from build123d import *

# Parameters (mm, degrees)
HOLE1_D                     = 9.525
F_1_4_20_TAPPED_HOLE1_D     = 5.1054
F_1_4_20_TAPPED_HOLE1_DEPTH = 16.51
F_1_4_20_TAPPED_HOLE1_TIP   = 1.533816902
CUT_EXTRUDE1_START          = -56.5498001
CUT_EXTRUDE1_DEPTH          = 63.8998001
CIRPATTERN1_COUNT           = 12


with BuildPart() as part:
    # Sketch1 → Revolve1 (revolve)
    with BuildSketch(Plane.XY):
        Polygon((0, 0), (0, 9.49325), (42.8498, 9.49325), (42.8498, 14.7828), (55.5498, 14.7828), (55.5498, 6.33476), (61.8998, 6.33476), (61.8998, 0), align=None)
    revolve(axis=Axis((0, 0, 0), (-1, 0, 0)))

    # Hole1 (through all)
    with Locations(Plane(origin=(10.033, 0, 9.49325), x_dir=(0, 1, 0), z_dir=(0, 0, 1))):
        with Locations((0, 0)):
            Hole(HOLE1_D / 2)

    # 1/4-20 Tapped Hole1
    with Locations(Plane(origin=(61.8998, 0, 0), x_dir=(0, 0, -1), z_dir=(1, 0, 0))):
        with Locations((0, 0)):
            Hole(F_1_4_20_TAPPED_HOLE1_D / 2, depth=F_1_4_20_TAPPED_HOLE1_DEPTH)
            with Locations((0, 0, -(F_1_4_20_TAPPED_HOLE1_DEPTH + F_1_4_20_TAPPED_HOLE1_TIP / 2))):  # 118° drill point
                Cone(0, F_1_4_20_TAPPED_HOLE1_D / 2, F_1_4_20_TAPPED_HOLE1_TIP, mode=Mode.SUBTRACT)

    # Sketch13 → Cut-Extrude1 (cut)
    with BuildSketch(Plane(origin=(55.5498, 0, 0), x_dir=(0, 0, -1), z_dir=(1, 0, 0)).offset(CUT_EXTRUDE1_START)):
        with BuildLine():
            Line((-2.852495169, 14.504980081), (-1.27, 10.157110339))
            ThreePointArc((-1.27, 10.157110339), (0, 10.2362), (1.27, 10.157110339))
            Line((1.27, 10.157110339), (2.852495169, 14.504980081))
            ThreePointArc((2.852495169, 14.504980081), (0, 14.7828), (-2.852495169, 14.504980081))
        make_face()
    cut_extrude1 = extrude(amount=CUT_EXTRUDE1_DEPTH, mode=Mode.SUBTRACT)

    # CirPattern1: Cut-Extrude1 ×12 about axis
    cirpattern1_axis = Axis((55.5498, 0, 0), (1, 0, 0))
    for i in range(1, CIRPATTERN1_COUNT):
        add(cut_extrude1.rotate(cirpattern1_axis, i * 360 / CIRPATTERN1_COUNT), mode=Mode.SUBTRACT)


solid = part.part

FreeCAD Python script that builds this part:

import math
import FreeCAD as App
import Part
import Sketcher
Q = App.Units.Quantity


def add_polygon(sketch, points):
    """Adds a closed chain of lines whose ends are joined by coincident constraints."""
    first, n = sketch.GeometryCount, len(points)
    for a, b in zip(points, points[1:] + points[:1]):
        sketch.addGeometry(Part.LineSegment(App.Vector(*a, 0), App.Vector(*b, 0)), False)
    for i in range(n):
        sketch.addConstraint(Sketcher.Constraint("Coincident", first + i, 2, first + (i + 1) % n, 1))

doc = App.newDocument("Part")
params = doc.addObject("Spreadsheet::Sheet", "Params")
for row, (alias, value) in enumerate([
    ("sketch1_width", "0.5 in"),
    ("sketch1_width2", "0.25 in"),
    ("sketch1_width3", "2.437 in"),
    ("revolution_angle", "360 deg"),
    ("sketch2_diameter", "0.375 in"),
    ("hole_diameter", "0.375 in"),
    ("sketch3_diameter", "0.201 in"),
    ("hole2_diameter", "0.201 in"),
    ("hole2_depth", "0.65 in"),
    ("sketch4_radius", "0.403 in"),
    ("sketch4_radius2", "0.582 in"),
    ("pocket1_length", "63.8998 mm"),
], start=1):
    params.set(f"A{row}", alias)
    params.set(f"B{row}", "=" + value)
    params.setAlias(f"B{row}", alias)

body = doc.addObject("PartDesign::Body", "Body")

sketch1 = doc.addObject("Sketcher::SketchObject", "Sketch")
body.addObject(sketch1)
sketch1.AttachmentSupport = (doc.XY_Plane, [""])
sketch1.MapMode = "FlatFace"
add_polygon(sketch1, [(0, 9.49325), (0, 0), (61.8998, 0), (61.8998, 6.33476), (55.5498, 6.33476), (55.5498, 14.7828), (42.8498, 14.7828), (42.8498, 9.49325)])
sketch1.addConstraint([
    Sketcher.Constraint("Vertical", 0),
    Sketcher.Constraint("Horizontal", 1),
    Sketcher.Constraint("Vertical", 2),
    Sketcher.Constraint("Horizontal", 3),
    Sketcher.Constraint("Vertical", 4),
    Sketcher.Constraint("Horizontal", 5),
    Sketcher.Constraint("Vertical", 6),
    Sketcher.Constraint("Horizontal", 7),
    Sketcher.Constraint("Coincident", 0, 2, -1, 1),
    Sketcher.Constraint("DistanceX", 5, 2, 5, 1, Q("0.5 in")),
    Sketcher.Constraint("DistanceX", 3, 2, 3, 1, Q("0.25 in")),
    Sketcher.Constraint("DistanceX", 1, 1, 1, 2, Q("2.437 in")),
    Sketcher.Constraint("DistanceY", 2, 1, 2, 2, Q("0.2494 in")),
    Sketcher.Constraint("DistanceY", 4, 1, 4, 2, Q("0.3326 in")),
    Sketcher.Constraint("DistanceY", 0, 2, 0, 1, 9.49325),
])
sketch1.setExpression("Constraints[17]", "Params.sketch1_width")
sketch1.setExpression("Constraints[18]", "Params.sketch1_width2")
sketch1.setExpression("Constraints[19]", "Params.sketch1_width3")
revolution = doc.addObject("PartDesign::Revolution", "Revolution")
body.addObject(revolution)
revolution.Profile = sketch1
revolution.ReferenceAxis = (sketch1, ["H_Axis"])
revolution.setExpression("Angle", "Params.revolution_angle")

sketch2 = doc.addObject("Sketcher::SketchObject", "Sketch001")
body.addObject(sketch2)
sketch2.AttachmentSupport = (doc.XY_Plane, [""])
sketch2.MapMode = "FlatFace"
sketch2.AttachmentOffset = App.Placement(App.Vector(0, 0, 9.49325), App.Rotation())
sketch2.addGeometry(Part.Circle(App.Vector(10.033, 0, 0), App.Vector(0, 0, 1), 4.7625), False)
sketch2.addConstraint([
    Sketcher.Constraint("PointOnObject", 0, 3, -1),
    Sketcher.Constraint("Diameter", 0, Q("0.375 in")),
    Sketcher.Constraint("DistanceX", -1, 1, 0, 3, Q("0.395 in")),
])
sketch2.setExpression("Constraints[1]", "Params.sketch2_diameter")
doc.recompute()
hole = doc.addObject("PartDesign::Hole", "Hole")
body.addObject(hole)
hole.Profile = sketch2
hole.ThreadType = "None"
hole.setExpression("Diameter", "Params.hole_diameter")
hole.DepthType = "ThroughAll"

sketch3 = doc.addObject("Sketcher::SketchObject", "Sketch002")
body.addObject(sketch3)
sketch3.AttachmentSupport = (doc.YZ_Plane, [""])
sketch3.MapMode = "FlatFace"
sketch3.AttachmentOffset = App.Placement(App.Vector(0, 0, 2.437 * 25.4), App.Rotation())
sketch3.addGeometry(Part.Circle(App.Vector(0, 0, 0), App.Vector(0, 0, 1), 2.5527), False)
sketch3.addConstraint([
    Sketcher.Constraint("Coincident", 0, 3, -1, 1),
    Sketcher.Constraint("Diameter", 0, Q("0.201 in")),
])
sketch3.setExpression("Constraints[1]", "Params.sketch3_diameter")
doc.recompute()
hole2 = doc.addObject("PartDesign::Hole", "Hole001")
body.addObject(hole2)
hole2.Profile = sketch3
hole2.ThreadType = "None"
hole2.setExpression("Diameter", "Params.hole2_diameter")
hole2.DepthType = "Dimension"
hole2.setExpression("Depth", "Params.hole2_depth")
hole2.DrillPoint = "Angled"
hole2.DrillPointAngle = 118

sketch4 = doc.addObject("Sketcher::SketchObject", "Sketch003")
body.addObject(sketch4)
sketch4.AttachmentSupport = (doc.YZ_Plane, [""])
sketch4.MapMode = "FlatFace"
sketch4.AttachmentOffset = App.Placement(App.Vector(0, 0, -1), App.Rotation())
sketch4.addGeometry([
    Part.LineSegment(App.Vector(14.50498, 2.852495, 0), App.Vector(10.15711, 1.27, 0)),
    Part.ArcOfCircle(Part.Circle(App.Vector(0, 0, 0), App.Vector(0, 0, 1), 10.2362), math.radians(-7.127023), math.radians(7.127023)),
    Part.LineSegment(App.Vector(10.15711, -1.27, 0), App.Vector(14.50498, -2.852495, 0)),
    Part.ArcOfCircle(Part.Circle(App.Vector(0, 0, 0), App.Vector(0, 0, 1), 14.7828), math.radians(-11.125601), math.radians(11.125601)),
], False)
sketch4.addConstraint([
    Sketcher.Constraint("Coincident", 0, 2, 1, 2),
    Sketcher.Constraint("Coincident", 1, 1, 2, 1),
    Sketcher.Constraint("Coincident", 2, 2, 3, 1),
    Sketcher.Constraint("Coincident", 3, 2, 0, 1),
    Sketcher.Constraint("Coincident", 1, 3, -1, 1),
    Sketcher.Constraint("Coincident", 3, 3, -1, 1),
    Sketcher.Constraint("Vertical", 0, 2, 1, 1),
    Sketcher.Constraint("Vertical", 2, 2, 3, 2),
    Sketcher.Constraint("Angle", 0, Q("-160 deg")),
    Sketcher.Constraint("Radius", 1, Q("0.403 in")),
    Sketcher.Constraint("Radius", 3, Q("0.582 in")),
    Sketcher.Constraint("DistanceY", 1, 1, 0, 2, Q("0.1 in")),
])
sketch4.setExpression("Constraints[9]", "Params.sketch4_radius")
sketch4.setExpression("Constraints[10]", "Params.sketch4_radius2")
pocket1 = doc.addObject("PartDesign::Pocket", "Pocket")
body.addObject(pocket1)
pocket1.Profile = sketch4
pocket1.setExpression("Length", "Params.pocket1_length")
pocket1.Reversed = True
doc.recompute()

polarpattern = doc.addObject("PartDesign::PolarPattern", "PolarPattern")
body.addObject(polarpattern)
polarpattern.Originals = [pocket1]
polarpattern.Axis = (doc.X_Axis, [""])
polarpattern.Angle = 360
polarpattern.Occurrences = 12
body.Tip = polarpattern

doc.recompute()
